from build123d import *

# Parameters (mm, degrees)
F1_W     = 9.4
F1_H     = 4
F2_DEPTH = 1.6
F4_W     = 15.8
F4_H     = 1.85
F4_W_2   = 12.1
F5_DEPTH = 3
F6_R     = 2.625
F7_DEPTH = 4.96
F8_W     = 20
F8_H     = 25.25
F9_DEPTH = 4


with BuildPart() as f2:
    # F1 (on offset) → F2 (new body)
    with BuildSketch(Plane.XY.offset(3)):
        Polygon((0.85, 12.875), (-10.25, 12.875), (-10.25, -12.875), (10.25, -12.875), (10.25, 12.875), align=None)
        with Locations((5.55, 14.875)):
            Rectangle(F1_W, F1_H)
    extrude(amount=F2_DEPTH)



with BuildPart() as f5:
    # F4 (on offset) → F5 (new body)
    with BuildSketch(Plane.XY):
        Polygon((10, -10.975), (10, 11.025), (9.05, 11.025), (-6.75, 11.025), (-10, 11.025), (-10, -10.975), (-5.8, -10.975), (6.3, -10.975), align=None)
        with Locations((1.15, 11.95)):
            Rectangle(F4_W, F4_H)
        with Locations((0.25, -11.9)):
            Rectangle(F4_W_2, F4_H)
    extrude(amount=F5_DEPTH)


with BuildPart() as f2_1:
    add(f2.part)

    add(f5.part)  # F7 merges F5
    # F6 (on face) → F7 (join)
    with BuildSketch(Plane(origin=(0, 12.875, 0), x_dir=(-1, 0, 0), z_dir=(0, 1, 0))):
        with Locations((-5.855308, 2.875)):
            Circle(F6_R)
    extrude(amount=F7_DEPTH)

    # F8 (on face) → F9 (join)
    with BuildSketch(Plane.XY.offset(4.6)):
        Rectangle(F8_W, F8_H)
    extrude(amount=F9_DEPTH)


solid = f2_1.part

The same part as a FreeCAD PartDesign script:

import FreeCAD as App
import Part
import Sketcher

V = App.Vector


def add_polygon(sketch, points):
    """Adds a closed chain of lines whose ends are joined by coincident constraints."""
    first, n = sketch.GeometryCount, len(points)
    for a, b in zip(points, points[1:] + points[:1]):
        sketch.addGeometry(Part.LineSegment(App.Vector(*a, 0), App.Vector(*b, 0)), False)
    for i in range(n):
        sketch.addConstraint(Sketcher.Constraint("Coincident", first + i, 2, first + (i + 1) % n, 1))

doc = App.newDocument("Part")
body = doc.addObject("PartDesign::Body", "Body")

# Sketch on XY plane
sketch1 = body.newObject("Sketcher::SketchObject", "Sketch")
sketch1.AttachmentSupport = (doc.getObject("XY_Plane"), [""])
sketch1.MapMode = "FlatFace"
sketch1.AttachmentOffset = App.Placement(V(0, 0, 3), App.Rotation())
add_polygon(sketch1, [(-10.2, 12.9), (-10.2, -12.9), (10.2, -12.9), (10.2, 16.9), (0.8, 16.9), (0.8, 12.9)])  # lines 0-5
sketch1.addConstraint([
    Sketcher.Constraint("Vertical", 0),
    Sketcher.Constraint("Horizontal", 1),
    Sketcher.Constraint("Vertical", 2),
    Sketcher.Constraint("Horizontal", 3),
    Sketcher.Constraint("Vertical", 4),
    Sketcher.Constraint("Horizontal", 5),
    Sketcher.Constraint("Symmetric", 1, 2, 5, 2, -1, 1),
    Sketcher.Constraint("DistanceY", 4, 2, 4, 1, 4.0),
    Sketcher.Constraint("DistanceX", 1, 1, 1, 2, 20.5),
    Sketcher.Constraint("DistanceX", 3, 2, 3, 1, 9.4),
    Sketcher.Constraint("DistanceY", 0, 2, 0, 1, 25.75),
])
pad1 = body.newObject("PartDesign::Pad", "Pad")
pad1.Profile = sketch1
pad1.Length = 1.6
body2 = doc.addObject("PartDesign::Body", "Body001")

# Sketch on XY plane
sketch2 = body2.newObject("Sketcher::SketchObject", "Sketch001")
sketch2.AttachmentSupport = (doc.getObject("XY_Plane001"), [""])
sketch2.MapMode = "FlatFace"
add_polygon(sketch2, [(10, -11), (10, 11), (9.1, 11), (9.1, 12.9), (-6.8, 12.9), (-6.8, 11), (-10, 11), (-10, -11), (-5.8, -11), (-5.8, -12.8), (6.3, -12.8), (6.3, -11)])  # lines 0-11
sketch2.addConstraint([
    Sketcher.Constraint("Vertical", 0),
    Sketcher.Constraint("Horizontal", 1),
    Sketcher.Constraint("Vertical", 2),
    Sketcher.Constraint("Horizontal", 3),
    Sketcher.Constraint("Vertical", 4),
    Sketcher.Constraint("Horizontal", 5),
    Sketcher.Constraint("Vertical", 6),
    Sketcher.Constraint("Horizontal", 7),
    Sketcher.Constraint("Vertical", 8),
    Sketcher.Constraint("Horizontal", 9),
    Sketcher.Constraint("Vertical", 10),
    Sketcher.Constraint("Horizontal", 11),
    Sketcher.Constraint("Symmetric", 0, 2, 5, 2, -2),
    Sketcher.Constraint("Horizontal", 7, 2, 10, 2),
    Sketcher.Constraint("Equal", 4, 8),
    Sketcher.Constraint("DistanceY", 0, 1, 0, 2, 22.0),
    Sketcher.Constraint("DistanceX", 3, 2, 3, 1, 15.8),
    Sketcher.Constraint("DistanceX", 7, 1, 7, 2, 4.2),
    Sketcher.Constraint("DistanceX", 9, 1, 9, 2, 12.1),
    Sketcher.Constraint("DistanceX", 11, 1, 11, 2, 3.7),
    Sketcher.Constraint("DistanceX", 1, 2, 1, 1, 0.95),
    Sketcher.Constraint("DistanceY", 2, 1, 2, 2, 1.85),
    Sketcher.Constraint("DistanceY", -1, 1, 0, 2, 11.025),
])
pad2 = body2.newObject("PartDesign::Pad", "Pad001")
pad2.Profile = sketch2
pad2.Length = 3
doc.recompute()

boolean = body.newObject("PartDesign::Boolean", "Boolean")
boolean.Type = "Fuse"
boolean.addObjects([body2])

# Sketch on XZ plane
sketch3 = body.newObject("Sketcher::SketchObject", "Sketch002")
sketch3.AttachmentSupport = (doc.getObject("XZ_Plane"), [""])
sketch3.MapMode = "FlatFace"
sketch3.AttachmentOffset = App.Placement(V(0, 0, -12.875), App.Rotation())
sketch3.addGeometry(Part.Circle(V(5.9, 2.9, 0), V(0, 0, 1), 2.6), False)
sketch3.addConstraint([
    Sketcher.Constraint("Diameter", 0, 5.25),
    Sketcher.Constraint("DistanceY", -1, 1, 0, 3, 2.875),
    Sketcher.Constraint("DistanceX", -1, 1, 0, 3, 5.855308),
])
pad3 = body.newObject("PartDesign::Pad", "Pad002")
pad3.Profile = sketch3
pad3.Length = 4.96
pad3.Reversed = True

# Sketch on XY plane
sketch4 = body.newObject("Sketcher::SketchObject", "Sketch003")
sketch4.AttachmentSupport = (doc.getObject("XY_Plane"), [""])
sketch4.MapMode = "FlatFace"
sketch4.AttachmentOffset = App.Placement(V(0, 0, 4.6), App.Rotation())
add_polygon(sketch4, [(-10, 13), (-10, -13), (10, -13), (10, 13)])  # lines 0-3
sketch4.addConstraint([
    Sketcher.Constraint("Vertical", 0),
    Sketcher.Constraint("Horizontal", 1),
    Sketcher.Constraint("Vertical", 2),
    Sketcher.Constraint("Horizontal", 3),
    Sketcher.Constraint("Symmetric", 0, 2, 2, 2, -1, 1),
    Sketcher.Constraint("DistanceX", 1, 1, 1, 2, 20.0),
    Sketcher.Constraint("DistanceY", 0, 2, 0, 1, 25.25),
])
pad4 = body.newObject("PartDesign::Pad", "Pad003")
pad4.Profile = sketch4
pad4.Length = 4

doc.recompute()
